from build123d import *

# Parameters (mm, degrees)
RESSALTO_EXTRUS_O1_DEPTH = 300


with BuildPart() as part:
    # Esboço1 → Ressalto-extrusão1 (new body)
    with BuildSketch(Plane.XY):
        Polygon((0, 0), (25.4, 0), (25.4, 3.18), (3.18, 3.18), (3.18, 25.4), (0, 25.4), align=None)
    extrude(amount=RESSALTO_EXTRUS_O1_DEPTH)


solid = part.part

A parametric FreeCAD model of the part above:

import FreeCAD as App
import Part
import Sketcher
Q = App.Units.Quantity

doc = App.newDocument("Part")
body = doc.addObject("PartDesign::Body", "Body")

# Sketch on XY plane
sketch1 = doc.addObject("Sketcher::SketchObject", "Sketch")
body.addObject(sketch1)
sketch1.AttachmentSupport = (doc.XY_Plane, [""])
sketch1.MapMode = "FlatFace"
sketch1.addGeometry([
    Part.LineSegment(App.Vector(0, 0, 0), App.Vector(25.4, 0, 0)),  # 0
    Part.LineSegment(App.Vector(25.4, 0, 0), App.Vector(25.4, 3.2, 0)),  # 1
    Part.LineSegment(App.Vector(25.4, 3.2, 0), App.Vector(3.2, 3.2, 0)),  # 2
    Part.LineSegment(App.Vector(3.2, 3.2, 0), App.Vector(3.2, 25.4, 0)),  # 3
    Part.LineSegment(App.Vector(3.2, 25.4, 0), App.Vector(0, 25.4, 0)),  # 4
    Part.LineSegment(App.Vector(0, 25.4, 0), App.Vector(0, 0, 0)),  # 5
], False)
sketch1.addConstraint([
    Sketcher.Constraint("Coincident", 0, 2, 1, 1),
    Sketcher.Constraint("Coincident", 1, 2, 2, 1),
    Sketcher.Constraint("Coincident", 2, 2, 3, 1),
    Sketcher.Constraint("Coincident", 3, 2, 4, 1),
    Sketcher.Constraint("Coincident", 4, 2, 5, 1),
    Sketcher.Constraint("Coincident", 5, 2, 0, 1),
    Sketcher.Constraint("Horizontal", 0),
    Sketcher.Constraint("Vertical", 1),
    Sketcher.Constraint("Horizontal", 2),
    Sketcher.Constraint("Vertical", 3),
    Sketcher.Constraint("Horizontal", 4),
    Sketcher.Constraint("Vertical", 5),
    Sketcher.Constraint("Coincident", 5, 2, -1, 1),
    Sketcher.Constraint("Equal", 4, 1),
    Sketcher.Constraint("Equal", 2, 3),
    Sketcher.Constraint("DistanceX", 0, 1, 0, 2, Q("25.4 mm")),
    Sketcher.Constraint("DistanceX", 2, 2, 2, 1, Q("22.22 mm")),
])
pad1 = doc.addObject("PartDesign::Pad", "Pad")
body.addObject(pad1)
pad1.Profile = sketch1
pad1.Length = 300

doc.recompute()
